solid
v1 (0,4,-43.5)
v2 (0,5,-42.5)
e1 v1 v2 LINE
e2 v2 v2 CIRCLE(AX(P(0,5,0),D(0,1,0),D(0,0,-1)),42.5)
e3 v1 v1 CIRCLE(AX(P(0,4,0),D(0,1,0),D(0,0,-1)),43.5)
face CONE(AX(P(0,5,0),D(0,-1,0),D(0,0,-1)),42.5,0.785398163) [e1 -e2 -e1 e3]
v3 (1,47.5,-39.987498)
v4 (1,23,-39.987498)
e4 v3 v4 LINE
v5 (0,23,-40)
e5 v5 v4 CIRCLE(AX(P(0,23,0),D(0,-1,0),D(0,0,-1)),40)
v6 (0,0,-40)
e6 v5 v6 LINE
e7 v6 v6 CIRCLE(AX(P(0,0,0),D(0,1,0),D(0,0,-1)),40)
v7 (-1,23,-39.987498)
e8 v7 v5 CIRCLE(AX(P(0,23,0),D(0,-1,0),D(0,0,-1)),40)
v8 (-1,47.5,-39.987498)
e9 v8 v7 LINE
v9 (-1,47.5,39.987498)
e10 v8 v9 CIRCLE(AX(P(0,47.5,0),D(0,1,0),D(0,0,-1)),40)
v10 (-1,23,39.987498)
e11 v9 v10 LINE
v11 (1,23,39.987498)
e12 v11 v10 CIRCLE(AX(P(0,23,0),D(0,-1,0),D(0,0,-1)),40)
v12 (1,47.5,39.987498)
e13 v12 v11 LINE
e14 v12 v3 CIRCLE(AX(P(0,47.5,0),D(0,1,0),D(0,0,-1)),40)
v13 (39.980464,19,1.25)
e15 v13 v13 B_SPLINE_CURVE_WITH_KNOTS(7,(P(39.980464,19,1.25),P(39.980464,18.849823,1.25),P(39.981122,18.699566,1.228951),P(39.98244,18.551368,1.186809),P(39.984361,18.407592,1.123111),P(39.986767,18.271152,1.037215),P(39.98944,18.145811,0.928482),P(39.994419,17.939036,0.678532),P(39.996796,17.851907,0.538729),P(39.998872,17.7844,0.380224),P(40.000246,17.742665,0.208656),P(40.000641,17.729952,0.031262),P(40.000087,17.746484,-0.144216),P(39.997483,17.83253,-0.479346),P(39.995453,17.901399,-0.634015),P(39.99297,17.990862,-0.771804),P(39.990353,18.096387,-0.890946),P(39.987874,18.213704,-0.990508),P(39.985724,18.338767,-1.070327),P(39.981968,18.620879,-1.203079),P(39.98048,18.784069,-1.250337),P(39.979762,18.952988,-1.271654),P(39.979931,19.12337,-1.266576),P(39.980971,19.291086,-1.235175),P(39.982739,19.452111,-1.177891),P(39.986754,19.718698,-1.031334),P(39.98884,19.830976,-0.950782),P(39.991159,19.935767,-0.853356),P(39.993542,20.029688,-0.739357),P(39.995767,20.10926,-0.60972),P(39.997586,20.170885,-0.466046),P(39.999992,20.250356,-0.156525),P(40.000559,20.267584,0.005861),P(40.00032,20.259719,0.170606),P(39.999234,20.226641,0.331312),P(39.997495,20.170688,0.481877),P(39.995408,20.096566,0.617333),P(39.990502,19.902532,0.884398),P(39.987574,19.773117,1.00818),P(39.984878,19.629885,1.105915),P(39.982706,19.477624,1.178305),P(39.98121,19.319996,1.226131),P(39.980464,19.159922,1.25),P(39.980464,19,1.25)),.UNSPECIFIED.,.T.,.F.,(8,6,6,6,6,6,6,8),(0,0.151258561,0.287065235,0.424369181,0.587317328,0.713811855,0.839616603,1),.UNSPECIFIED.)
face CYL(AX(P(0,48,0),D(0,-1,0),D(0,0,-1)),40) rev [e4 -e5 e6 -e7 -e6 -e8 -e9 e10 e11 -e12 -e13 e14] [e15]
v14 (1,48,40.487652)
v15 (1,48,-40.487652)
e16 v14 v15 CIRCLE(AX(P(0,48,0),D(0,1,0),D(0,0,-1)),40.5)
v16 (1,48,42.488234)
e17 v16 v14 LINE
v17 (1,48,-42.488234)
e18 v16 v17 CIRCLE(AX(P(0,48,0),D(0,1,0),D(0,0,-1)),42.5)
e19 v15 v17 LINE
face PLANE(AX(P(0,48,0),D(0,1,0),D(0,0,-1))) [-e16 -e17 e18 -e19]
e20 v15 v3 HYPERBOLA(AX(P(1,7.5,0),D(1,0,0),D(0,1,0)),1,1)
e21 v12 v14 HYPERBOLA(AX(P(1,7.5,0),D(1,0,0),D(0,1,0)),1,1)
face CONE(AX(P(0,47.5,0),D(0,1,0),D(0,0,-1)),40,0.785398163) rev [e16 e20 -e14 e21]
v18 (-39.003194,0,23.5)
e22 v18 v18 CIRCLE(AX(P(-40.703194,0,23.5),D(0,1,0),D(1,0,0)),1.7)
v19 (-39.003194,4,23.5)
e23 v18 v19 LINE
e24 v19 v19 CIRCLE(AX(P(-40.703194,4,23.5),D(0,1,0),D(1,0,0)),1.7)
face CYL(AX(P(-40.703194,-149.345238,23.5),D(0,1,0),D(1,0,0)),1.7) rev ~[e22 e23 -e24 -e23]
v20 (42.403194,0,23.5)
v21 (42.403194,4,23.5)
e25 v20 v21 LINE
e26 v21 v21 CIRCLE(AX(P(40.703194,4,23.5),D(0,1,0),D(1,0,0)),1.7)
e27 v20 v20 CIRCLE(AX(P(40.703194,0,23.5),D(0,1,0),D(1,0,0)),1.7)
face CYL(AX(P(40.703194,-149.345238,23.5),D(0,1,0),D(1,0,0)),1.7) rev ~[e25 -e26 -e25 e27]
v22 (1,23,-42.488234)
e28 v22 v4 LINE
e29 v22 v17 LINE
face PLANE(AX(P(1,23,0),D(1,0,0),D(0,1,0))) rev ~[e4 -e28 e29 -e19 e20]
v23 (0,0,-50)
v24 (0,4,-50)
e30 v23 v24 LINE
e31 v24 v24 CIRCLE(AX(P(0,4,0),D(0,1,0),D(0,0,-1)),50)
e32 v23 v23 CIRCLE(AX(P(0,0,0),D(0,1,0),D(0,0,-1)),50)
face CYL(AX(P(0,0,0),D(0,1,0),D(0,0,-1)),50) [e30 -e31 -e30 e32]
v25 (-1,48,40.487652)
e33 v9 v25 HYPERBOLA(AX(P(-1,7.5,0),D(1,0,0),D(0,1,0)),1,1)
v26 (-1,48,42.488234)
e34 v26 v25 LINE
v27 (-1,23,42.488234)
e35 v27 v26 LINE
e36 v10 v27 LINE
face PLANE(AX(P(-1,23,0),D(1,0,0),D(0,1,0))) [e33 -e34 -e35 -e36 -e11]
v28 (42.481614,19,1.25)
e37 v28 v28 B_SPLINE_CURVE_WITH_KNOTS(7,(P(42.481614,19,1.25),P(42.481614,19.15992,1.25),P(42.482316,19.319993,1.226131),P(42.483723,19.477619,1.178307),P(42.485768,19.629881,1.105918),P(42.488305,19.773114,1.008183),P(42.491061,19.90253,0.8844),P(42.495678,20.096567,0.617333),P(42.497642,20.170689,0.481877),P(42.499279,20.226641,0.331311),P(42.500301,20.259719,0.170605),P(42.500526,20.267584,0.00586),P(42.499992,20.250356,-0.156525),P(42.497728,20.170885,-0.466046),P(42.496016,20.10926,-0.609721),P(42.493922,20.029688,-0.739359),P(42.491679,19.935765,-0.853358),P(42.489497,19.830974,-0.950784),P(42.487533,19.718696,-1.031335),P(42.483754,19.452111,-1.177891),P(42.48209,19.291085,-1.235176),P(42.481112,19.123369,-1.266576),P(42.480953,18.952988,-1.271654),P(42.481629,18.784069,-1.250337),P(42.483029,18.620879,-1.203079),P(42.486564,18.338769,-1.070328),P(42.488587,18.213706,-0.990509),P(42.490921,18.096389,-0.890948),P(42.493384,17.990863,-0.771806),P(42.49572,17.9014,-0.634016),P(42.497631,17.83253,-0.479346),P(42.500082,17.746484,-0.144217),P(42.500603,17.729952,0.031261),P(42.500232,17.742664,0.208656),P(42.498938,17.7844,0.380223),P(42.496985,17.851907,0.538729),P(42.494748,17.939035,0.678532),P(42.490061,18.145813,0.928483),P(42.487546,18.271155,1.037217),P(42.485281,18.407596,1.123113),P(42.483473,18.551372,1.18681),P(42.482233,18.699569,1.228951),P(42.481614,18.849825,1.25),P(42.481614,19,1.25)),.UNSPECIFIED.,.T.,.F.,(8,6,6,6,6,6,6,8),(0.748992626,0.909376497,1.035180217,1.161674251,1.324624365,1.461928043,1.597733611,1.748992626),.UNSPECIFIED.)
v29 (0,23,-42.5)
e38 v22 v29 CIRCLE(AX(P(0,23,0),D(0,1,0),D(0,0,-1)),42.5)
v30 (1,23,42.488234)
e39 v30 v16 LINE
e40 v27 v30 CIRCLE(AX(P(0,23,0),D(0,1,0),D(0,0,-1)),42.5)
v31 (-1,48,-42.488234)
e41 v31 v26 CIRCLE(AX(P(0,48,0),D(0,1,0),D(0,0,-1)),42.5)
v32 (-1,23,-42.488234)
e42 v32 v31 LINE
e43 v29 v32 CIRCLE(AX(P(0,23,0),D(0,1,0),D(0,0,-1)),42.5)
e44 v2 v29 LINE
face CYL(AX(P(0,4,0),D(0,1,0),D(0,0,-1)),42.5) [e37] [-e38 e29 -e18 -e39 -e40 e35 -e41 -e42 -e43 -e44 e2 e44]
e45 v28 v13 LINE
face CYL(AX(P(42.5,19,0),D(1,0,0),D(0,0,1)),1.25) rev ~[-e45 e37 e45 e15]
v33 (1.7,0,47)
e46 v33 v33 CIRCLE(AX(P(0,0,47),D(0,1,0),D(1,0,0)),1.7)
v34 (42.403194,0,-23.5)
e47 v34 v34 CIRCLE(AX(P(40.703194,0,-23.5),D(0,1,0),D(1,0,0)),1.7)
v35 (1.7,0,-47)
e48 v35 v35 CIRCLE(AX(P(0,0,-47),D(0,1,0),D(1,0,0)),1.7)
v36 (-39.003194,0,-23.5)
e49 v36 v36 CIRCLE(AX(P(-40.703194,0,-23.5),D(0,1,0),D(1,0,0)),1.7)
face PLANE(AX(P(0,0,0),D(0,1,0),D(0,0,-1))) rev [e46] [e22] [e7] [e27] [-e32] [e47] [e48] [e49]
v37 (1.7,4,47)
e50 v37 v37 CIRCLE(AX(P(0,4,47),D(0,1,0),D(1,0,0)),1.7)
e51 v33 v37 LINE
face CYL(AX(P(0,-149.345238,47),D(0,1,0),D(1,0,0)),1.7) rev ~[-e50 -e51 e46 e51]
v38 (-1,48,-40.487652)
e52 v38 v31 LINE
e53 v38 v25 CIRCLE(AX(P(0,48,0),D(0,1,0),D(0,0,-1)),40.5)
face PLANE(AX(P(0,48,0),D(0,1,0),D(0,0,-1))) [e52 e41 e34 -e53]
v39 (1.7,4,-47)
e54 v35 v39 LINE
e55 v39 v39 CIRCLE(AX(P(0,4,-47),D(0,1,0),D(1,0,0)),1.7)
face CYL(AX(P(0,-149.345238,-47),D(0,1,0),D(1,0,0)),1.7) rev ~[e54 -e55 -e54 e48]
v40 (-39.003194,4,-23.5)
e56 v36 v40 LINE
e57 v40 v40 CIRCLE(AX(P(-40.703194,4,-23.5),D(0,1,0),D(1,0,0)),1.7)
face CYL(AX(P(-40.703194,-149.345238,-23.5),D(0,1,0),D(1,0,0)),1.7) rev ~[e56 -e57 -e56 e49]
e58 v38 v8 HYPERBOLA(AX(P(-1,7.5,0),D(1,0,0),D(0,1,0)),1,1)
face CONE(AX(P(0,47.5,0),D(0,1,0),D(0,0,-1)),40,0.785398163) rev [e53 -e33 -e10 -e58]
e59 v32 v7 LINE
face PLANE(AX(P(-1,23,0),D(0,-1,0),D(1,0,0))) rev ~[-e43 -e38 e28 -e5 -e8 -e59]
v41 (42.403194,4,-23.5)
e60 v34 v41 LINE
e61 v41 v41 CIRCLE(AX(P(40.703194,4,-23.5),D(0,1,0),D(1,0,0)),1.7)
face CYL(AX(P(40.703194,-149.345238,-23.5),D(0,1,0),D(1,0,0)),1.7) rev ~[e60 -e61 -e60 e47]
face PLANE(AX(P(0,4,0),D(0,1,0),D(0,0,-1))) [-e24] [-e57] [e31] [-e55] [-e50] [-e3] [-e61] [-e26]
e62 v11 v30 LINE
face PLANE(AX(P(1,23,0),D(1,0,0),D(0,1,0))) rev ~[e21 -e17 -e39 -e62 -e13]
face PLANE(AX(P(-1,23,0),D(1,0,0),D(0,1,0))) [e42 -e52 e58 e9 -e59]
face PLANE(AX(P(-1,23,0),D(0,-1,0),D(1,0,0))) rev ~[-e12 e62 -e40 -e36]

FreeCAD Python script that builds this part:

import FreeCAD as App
import Part
import Sketcher
Q = App.Units.Quantity


def edges_at(feature, points):
    """Names of the edges that pass closest to the given points."""
    edges = feature.Shape.Edges
    near = lambda p: min(range(len(edges)), key=lambda i: edges[i].distToShape(Part.Vertex(*p))[0])
    return sorted({f"Edge{near(p) + 1}" for p in points})


def add_polygon(sketch, points):
    """Adds a closed chain of lines whose ends are joined by coincident constraints."""
    first, n = sketch.GeometryCount, len(points)
    for a, b in zip(points, points[1:] + points[:1]):
        sketch.addGeometry(Part.LineSegment(App.Vector(*a, 0), App.Vector(*b, 0)), False)
    for i in range(n):
        sketch.addConstraint(Sketcher.Constraint("Coincident", first + i, 2, first + (i + 1) % n, 1))

doc = App.newDocument("Part")
body = doc.addObject("PartDesign::Body", "Body")

sketch1 = body.newObject("Sketcher::SketchObject", "Sketch")
sketch1.AttachmentSupport = (doc.getObject("XY_Plane"), [""])
sketch1.MapMode = "FlatFace"
add_polygon(sketch1, [(40, 0), (50, 0), (50, 4), (42.5, 4), (42.5, 48), (40, 48)])
sketch1.addConstraint(Sketcher.Constraint("Horizontal", 0))
sketch1.addConstraint(Sketcher.Constraint("Vertical", 1))
sketch1.addConstraint(Sketcher.Constraint("Horizontal", 2))
sketch1.addConstraint(Sketcher.Constraint("Vertical", 3))
sketch1.addConstraint(Sketcher.Constraint("Horizontal", 4))
sketch1.addConstraint(Sketcher.Constraint("Vertical", 5))
sketch1.addConstraint(Sketcher.Constraint("PointOnObject", 0, 2, -1))
sketch1.addConstraint(Sketcher.Constraint("DistanceX", 0, 1, 0, 2, Q("10 mm")))
sketch1.addConstraint(Sketcher.Constraint("DistanceY", 1, 1, 1, 2, Q("4 mm")))
sketch1.addConstraint(Sketcher.Constraint("DistanceY", 3, 1, 3, 2, Q("44 mm")))
sketch1.addConstraint(Sketcher.Constraint("DistanceX", 2, 2, 2, 1, Q("7.5 mm")))
sketch1.addConstraint(Sketcher.Constraint("DistanceX", -1, 1, 0, 2, Q("50 mm")))
revolution = body.newObject("PartDesign::Revolution", "Revolution")
revolution.Profile = sketch1
revolution.ReferenceAxis = (sketch1, ["V_Axis"])
revolution.Angle = 360
doc.recompute()

chamfer = body.newObject("PartDesign::Chamfer", "Chamfer")
chamfer.Base = (revolution, edges_at(revolution, [(0, 4, 42.5)]))
chamfer.Size = 1
doc.recompute()

chamfer2 = body.newObject("PartDesign::Chamfer", "Chamfer001")
chamfer2.Base = (chamfer, edges_at(chamfer, [(0, 48, 40)]))
chamfer2.Size = 0.5

sketch2 = body.newObject("Sketcher::SketchObject", "Sketch001")
sketch2.AttachmentSupport = (doc.getObject("XY_Plane"), [""])
sketch2.MapMode = "FlatFace"
add_polygon(sketch2, [(-1, 48), (-1, 23), (1, 23), (1, 48)])
sketch2.addConstraint(Sketcher.Constraint("Vertical", 0))
sketch2.addConstraint(Sketcher.Constraint("Horizontal", 1))
sketch2.addConstraint(Sketcher.Constraint("Vertical", 2))
sketch2.addConstraint(Sketcher.Constraint("Horizontal", 3))
sketch2.addConstraint(Sketcher.Constraint("DistanceX", 1, 1, 1, 2, Q("2 mm")))
sketch2.addConstraint(Sketcher.Constraint("DistanceY", 0, 2, 0, 1, Q("25 mm")))
sketch2.addConstraint(Sketcher.Constraint("DistanceX", 0, 2, -1, 1, Q("1 mm")))
sketch2.addConstraint(Sketcher.Constraint("DistanceY", -1, 1, 0, 2, Q("23 mm")))
pocket1 = body.newObject("PartDesign::Pocket", "Pocket")
pocket1.Profile = sketch2
pocket1.Length = 100
pocket1.Midplane = True

sketch3 = body.newObject("Sketcher::SketchObject", "Sketch002")
sketch3.AttachmentSupport = (doc.getObject("XZ_Plane"), [""])
sketch3.MapMode = "FlatFace"
sketch3.addGeometry(Part.Circle(App.Vector(0, -47, 0), App.Vector(0, 0, 1), 1.7), False)
sketch3.addGeometry(Part.Circle(App.Vector(-40.7, -23.5, 0), App.Vector(0, 0, 1), 1.7), False)
sketch3.addGeometry(Part.Circle(App.Vector(-40.7, 23.5, 0), App.Vector(0, 0, 1), 1.7), False)
sketch3.addGeometry(Part.Circle(App.Vector(0, 47, 0), App.Vector(0, 0, 1), 1.7), False)
sketch3.addGeometry(Part.Circle(App.Vector(40.7, 23.5, 0), App.Vector(0, 0, 1), 1.7), False)
sketch3.addGeometry(Part.Circle(App.Vector(40.7, -23.5, 0), App.Vector(0, 0, 1), 1.7), False)
sketch3.addConstraint(Sketcher.Constraint("Equal", 0, 1))
sketch3.addConstraint(Sketcher.Constraint("Equal", 1, 2))
sketch3.addConstraint(Sketcher.Constraint("Equal", 2, 3))
sketch3.addConstraint(Sketcher.Constraint("Equal", 3, 4))
sketch3.addConstraint(Sketcher.Constraint("Equal", 4, 5))
sketch3.addConstraint(Sketcher.Constraint("Symmetric", 0, 3, 3, 3, -1, 1))
sketch3.addConstraint(Sketcher.Constraint("Symmetric", 1, 3, 4, 3, -1, 1))
sketch3.addConstraint(Sketcher.Constraint("Symmetric", 2, 3, 5, 3, -1, 1))
sketch3.addConstraint(Sketcher.Constraint("Symmetric", 2, 3, 4, 3, -2))
sketch3.addConstraint(Sketcher.Constraint("PointOnObject", 0, 3, -2))
sketch3.addConstraint(Sketcher.Constraint("Diameter", 0, Q("3.4 mm")))
sketch3.addConstraint(Sketcher.Constraint("DistanceY", 0, 3, -1, 1, Q("47 mm")))
sketch3.addConstraint(Sketcher.Constraint("DistanceY", 1, 3, 2, 3, Q("47 mm")))
sketch3.addConstraint(Sketcher.Constraint("DistanceX", 1, 3, -1, 1, Q("40.703194 mm")))
doc.recompute()
hole = body.newObject("PartDesign::Hole", "Hole")
hole.Profile = sketch3
hole.ThreadType = "None"
hole.Diameter = 3.4
hole.DepthType = "ThroughAll"

sketch4 = body.newObject("Sketcher::SketchObject", "Sketch003")
sketch4.AttachmentSupport = (doc.getObject("YZ_Plane"), [""])
sketch4.MapMode = "FlatFace"
sketch4.AttachmentOffset = App.Placement(App.Vector(0, 0, 42.5), App.Rotation())
sketch4.addGeometry(Part.Circle(App.Vector(19, 0, 0), App.Vector(0, 0, 1), 1.2), False)
sketch4.addConstraint(Sketcher.Constraint("PointOnObject", 0, 3, -1))
sketch4.addConstraint(Sketcher.Constraint("Diameter", 0, Q("2.5 mm")))
sketch4.addConstraint(Sketcher.Constraint("DistanceX", -1, 1, 0, 3, Q("19 mm")))
pocket2 = body.newObject("PartDesign::Pocket", "Pocket001")
pocket2.Profile = sketch4
pocket2.Length = 2.519536

doc.recompute()
